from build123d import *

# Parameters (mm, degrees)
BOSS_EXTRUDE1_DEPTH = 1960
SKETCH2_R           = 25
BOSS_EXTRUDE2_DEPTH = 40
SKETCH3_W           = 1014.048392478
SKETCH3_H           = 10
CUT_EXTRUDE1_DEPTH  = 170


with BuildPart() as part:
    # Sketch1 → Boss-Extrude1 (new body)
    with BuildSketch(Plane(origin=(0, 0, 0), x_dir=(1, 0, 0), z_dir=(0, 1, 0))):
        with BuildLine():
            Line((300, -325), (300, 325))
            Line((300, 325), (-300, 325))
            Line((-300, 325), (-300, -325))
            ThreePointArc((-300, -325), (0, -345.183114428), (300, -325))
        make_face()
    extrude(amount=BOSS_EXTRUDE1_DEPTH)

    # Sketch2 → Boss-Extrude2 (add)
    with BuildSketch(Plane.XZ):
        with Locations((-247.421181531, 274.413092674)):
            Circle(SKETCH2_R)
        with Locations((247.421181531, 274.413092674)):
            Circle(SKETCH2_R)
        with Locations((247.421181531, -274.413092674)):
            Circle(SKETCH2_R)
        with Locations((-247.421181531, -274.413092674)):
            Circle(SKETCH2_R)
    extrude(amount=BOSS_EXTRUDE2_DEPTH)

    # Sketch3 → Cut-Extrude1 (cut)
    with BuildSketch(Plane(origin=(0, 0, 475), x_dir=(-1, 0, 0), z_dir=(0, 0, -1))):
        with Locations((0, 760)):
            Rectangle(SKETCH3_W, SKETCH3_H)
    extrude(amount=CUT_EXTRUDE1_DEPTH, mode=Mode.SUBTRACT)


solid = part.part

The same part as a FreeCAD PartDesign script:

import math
import FreeCAD as App
import Part
import Sketcher
from FreeCAD import Vector


def add_polygon(sketch, points):
    """Adds a closed chain of lines whose ends are joined by coincident constraints."""
    first, n = sketch.GeometryCount, len(points)
    for a, b in zip(points, points[1:] + points[:1]):
        sketch.addGeometry(Part.LineSegment(App.Vector(*a, 0), App.Vector(*b, 0)), False)
    for i in range(n):
        sketch.addConstraint(Sketcher.Constraint("Coincident", first + i, 2, first + (i + 1) % n, 1))

doc = App.newDocument("Part")
body = doc.addObject("PartDesign::Body", "Body")

# Sketch on XZ plane
sketch1 = body.newObject("Sketcher::SketchObject", "Sketch")
sketch1.AttachmentSupport = (doc.getObject("XZ_Plane"), [""])
sketch1.MapMode = "FlatFace"
sketch1.addGeometry([
    Part.LineSegment(Vector(300, 325, 0), Vector(300, -325, 0)),
    Part.LineSegment(Vector(300, -325, 0), Vector(-300, -325, 0)),
    Part.LineSegment(Vector(-300, -325, 0), Vector(-300, 325, 0)),
    Part.ArcOfCircle(Part.Circle(Vector(0, -1894.49497, 0), Vector(0, 0, 1), 2239.678084), math.radians(82.302218), math.radians(97.697782)),
], False)
sketch1.addConstraint([
    Sketcher.Constraint("Coincident", 0, 2, 1, 1),
    Sketcher.Constraint("Coincident", 1, 2, 2, 1),
    Sketcher.Constraint("Coincident", 2, 2, 3, 2),
    Sketcher.Constraint("Coincident", 3, 1, 0, 1),
    Sketcher.Constraint("Vertical", 0),
    Sketcher.Constraint("Horizontal", 1),
    Sketcher.Constraint("Vertical", 2),
    Sketcher.Constraint("Symmetric", 0, 2, 2, 2, -1, 1),
    Sketcher.Constraint("PointOnObject", 3, 3, -2),
    Sketcher.Constraint("DistanceX", 1, 2, 1, 1, 600.0),
    Sketcher.Constraint("DistanceY", 0, 2, 0, 1, 650.0),
    Sketcher.Constraint("Radius", 3, 2239.678084),
])
pad1 = body.newObject("PartDesign::Pad", "Pad")
pad1.Profile = sketch1
pad1.Length = 1960
pad1.Reversed = True

# Sketch on XZ plane
sketch2 = body.newObject("Sketcher::SketchObject", "Sketch001")
sketch2.AttachmentSupport = (doc.getObject("XZ_Plane"), [""])
sketch2.MapMode = "FlatFace"
sketch2.addGeometry([
    Part.Circle(Vector(-247.421182, 274.413093, 0), Vector(0, 0, 1), 25),
    Part.Circle(Vector(247.421182, 274.413093, 0), Vector(0, 0, 1), 25),
    Part.Circle(Vector(247.421182, -274.413093, 0), Vector(0, 0, 1), 25),
    Part.Circle(Vector(-247.421182, -274.413093, 0), Vector(0, 0, 1), 25),
], False)
sketch2.addConstraint([
    Sketcher.Constraint("Equal", 0, 1),
    Sketcher.Constraint("Equal", 1, 2),
    Sketcher.Constraint("Equal", 2, 3),
    Sketcher.Constraint("Symmetric", 0, 3, 2, 3, -1, 1),
    Sketcher.Constraint("Symmetric", 1, 3, 3, 3, -1, 1),
    Sketcher.Constraint("Symmetric", 0, 3, 1, 3, -2),
    Sketcher.Constraint("Diameter", 0, 50.0),
    Sketcher.Constraint("DistanceX", 0, 3, -1, 1, 247.421182),
    Sketcher.Constraint("DistanceY", -1, 1, 0, 3, 274.413093),
])
pad2 = body.newObject("PartDesign::Pad", "Pad001")
pad2.Profile = sketch2
pad2.Length = 40

# Sketch on XY plane
sketch3 = body.newObject("Sketcher::SketchObject", "Sketch002")
sketch3.AttachmentSupport = (doc.getObject("XY_Plane"), [""])
sketch3.MapMode = "FlatFace"
sketch3.AttachmentOffset = App.Placement(Vector(0, 0, 475), App.Rotation())
add_polygon(sketch3, [(507.024196, 765), (507.024196, 755), (-507.024196, 755), (-507.024196, 765)])  # lines 0-3
sketch3.addConstraint([
    Sketcher.Constraint("Vertical", 0),
    Sketcher.Constraint("Horizontal", 1),
    Sketcher.Constraint("Vertical", 2),
    Sketcher.Constraint("Horizontal", 3),
    Sketcher.Constraint("DistanceY", 0, 2, 0, 1, 10.0),
    Sketcher.Constraint("DistanceY", -1, 1, 0, 2, 755.0),
    Sketcher.Constraint("DistanceX", 1, 2, 1, 1, 1014.048392),
    Sketcher.Constraint("DistanceX", -1, 1, 0, 2, 507.024196),
])
pocket1 = body.newObject("PartDesign::Pocket", "Pocket")
pocket1.Profile = sketch3
pocket1.Length = 170

doc.recompute()
